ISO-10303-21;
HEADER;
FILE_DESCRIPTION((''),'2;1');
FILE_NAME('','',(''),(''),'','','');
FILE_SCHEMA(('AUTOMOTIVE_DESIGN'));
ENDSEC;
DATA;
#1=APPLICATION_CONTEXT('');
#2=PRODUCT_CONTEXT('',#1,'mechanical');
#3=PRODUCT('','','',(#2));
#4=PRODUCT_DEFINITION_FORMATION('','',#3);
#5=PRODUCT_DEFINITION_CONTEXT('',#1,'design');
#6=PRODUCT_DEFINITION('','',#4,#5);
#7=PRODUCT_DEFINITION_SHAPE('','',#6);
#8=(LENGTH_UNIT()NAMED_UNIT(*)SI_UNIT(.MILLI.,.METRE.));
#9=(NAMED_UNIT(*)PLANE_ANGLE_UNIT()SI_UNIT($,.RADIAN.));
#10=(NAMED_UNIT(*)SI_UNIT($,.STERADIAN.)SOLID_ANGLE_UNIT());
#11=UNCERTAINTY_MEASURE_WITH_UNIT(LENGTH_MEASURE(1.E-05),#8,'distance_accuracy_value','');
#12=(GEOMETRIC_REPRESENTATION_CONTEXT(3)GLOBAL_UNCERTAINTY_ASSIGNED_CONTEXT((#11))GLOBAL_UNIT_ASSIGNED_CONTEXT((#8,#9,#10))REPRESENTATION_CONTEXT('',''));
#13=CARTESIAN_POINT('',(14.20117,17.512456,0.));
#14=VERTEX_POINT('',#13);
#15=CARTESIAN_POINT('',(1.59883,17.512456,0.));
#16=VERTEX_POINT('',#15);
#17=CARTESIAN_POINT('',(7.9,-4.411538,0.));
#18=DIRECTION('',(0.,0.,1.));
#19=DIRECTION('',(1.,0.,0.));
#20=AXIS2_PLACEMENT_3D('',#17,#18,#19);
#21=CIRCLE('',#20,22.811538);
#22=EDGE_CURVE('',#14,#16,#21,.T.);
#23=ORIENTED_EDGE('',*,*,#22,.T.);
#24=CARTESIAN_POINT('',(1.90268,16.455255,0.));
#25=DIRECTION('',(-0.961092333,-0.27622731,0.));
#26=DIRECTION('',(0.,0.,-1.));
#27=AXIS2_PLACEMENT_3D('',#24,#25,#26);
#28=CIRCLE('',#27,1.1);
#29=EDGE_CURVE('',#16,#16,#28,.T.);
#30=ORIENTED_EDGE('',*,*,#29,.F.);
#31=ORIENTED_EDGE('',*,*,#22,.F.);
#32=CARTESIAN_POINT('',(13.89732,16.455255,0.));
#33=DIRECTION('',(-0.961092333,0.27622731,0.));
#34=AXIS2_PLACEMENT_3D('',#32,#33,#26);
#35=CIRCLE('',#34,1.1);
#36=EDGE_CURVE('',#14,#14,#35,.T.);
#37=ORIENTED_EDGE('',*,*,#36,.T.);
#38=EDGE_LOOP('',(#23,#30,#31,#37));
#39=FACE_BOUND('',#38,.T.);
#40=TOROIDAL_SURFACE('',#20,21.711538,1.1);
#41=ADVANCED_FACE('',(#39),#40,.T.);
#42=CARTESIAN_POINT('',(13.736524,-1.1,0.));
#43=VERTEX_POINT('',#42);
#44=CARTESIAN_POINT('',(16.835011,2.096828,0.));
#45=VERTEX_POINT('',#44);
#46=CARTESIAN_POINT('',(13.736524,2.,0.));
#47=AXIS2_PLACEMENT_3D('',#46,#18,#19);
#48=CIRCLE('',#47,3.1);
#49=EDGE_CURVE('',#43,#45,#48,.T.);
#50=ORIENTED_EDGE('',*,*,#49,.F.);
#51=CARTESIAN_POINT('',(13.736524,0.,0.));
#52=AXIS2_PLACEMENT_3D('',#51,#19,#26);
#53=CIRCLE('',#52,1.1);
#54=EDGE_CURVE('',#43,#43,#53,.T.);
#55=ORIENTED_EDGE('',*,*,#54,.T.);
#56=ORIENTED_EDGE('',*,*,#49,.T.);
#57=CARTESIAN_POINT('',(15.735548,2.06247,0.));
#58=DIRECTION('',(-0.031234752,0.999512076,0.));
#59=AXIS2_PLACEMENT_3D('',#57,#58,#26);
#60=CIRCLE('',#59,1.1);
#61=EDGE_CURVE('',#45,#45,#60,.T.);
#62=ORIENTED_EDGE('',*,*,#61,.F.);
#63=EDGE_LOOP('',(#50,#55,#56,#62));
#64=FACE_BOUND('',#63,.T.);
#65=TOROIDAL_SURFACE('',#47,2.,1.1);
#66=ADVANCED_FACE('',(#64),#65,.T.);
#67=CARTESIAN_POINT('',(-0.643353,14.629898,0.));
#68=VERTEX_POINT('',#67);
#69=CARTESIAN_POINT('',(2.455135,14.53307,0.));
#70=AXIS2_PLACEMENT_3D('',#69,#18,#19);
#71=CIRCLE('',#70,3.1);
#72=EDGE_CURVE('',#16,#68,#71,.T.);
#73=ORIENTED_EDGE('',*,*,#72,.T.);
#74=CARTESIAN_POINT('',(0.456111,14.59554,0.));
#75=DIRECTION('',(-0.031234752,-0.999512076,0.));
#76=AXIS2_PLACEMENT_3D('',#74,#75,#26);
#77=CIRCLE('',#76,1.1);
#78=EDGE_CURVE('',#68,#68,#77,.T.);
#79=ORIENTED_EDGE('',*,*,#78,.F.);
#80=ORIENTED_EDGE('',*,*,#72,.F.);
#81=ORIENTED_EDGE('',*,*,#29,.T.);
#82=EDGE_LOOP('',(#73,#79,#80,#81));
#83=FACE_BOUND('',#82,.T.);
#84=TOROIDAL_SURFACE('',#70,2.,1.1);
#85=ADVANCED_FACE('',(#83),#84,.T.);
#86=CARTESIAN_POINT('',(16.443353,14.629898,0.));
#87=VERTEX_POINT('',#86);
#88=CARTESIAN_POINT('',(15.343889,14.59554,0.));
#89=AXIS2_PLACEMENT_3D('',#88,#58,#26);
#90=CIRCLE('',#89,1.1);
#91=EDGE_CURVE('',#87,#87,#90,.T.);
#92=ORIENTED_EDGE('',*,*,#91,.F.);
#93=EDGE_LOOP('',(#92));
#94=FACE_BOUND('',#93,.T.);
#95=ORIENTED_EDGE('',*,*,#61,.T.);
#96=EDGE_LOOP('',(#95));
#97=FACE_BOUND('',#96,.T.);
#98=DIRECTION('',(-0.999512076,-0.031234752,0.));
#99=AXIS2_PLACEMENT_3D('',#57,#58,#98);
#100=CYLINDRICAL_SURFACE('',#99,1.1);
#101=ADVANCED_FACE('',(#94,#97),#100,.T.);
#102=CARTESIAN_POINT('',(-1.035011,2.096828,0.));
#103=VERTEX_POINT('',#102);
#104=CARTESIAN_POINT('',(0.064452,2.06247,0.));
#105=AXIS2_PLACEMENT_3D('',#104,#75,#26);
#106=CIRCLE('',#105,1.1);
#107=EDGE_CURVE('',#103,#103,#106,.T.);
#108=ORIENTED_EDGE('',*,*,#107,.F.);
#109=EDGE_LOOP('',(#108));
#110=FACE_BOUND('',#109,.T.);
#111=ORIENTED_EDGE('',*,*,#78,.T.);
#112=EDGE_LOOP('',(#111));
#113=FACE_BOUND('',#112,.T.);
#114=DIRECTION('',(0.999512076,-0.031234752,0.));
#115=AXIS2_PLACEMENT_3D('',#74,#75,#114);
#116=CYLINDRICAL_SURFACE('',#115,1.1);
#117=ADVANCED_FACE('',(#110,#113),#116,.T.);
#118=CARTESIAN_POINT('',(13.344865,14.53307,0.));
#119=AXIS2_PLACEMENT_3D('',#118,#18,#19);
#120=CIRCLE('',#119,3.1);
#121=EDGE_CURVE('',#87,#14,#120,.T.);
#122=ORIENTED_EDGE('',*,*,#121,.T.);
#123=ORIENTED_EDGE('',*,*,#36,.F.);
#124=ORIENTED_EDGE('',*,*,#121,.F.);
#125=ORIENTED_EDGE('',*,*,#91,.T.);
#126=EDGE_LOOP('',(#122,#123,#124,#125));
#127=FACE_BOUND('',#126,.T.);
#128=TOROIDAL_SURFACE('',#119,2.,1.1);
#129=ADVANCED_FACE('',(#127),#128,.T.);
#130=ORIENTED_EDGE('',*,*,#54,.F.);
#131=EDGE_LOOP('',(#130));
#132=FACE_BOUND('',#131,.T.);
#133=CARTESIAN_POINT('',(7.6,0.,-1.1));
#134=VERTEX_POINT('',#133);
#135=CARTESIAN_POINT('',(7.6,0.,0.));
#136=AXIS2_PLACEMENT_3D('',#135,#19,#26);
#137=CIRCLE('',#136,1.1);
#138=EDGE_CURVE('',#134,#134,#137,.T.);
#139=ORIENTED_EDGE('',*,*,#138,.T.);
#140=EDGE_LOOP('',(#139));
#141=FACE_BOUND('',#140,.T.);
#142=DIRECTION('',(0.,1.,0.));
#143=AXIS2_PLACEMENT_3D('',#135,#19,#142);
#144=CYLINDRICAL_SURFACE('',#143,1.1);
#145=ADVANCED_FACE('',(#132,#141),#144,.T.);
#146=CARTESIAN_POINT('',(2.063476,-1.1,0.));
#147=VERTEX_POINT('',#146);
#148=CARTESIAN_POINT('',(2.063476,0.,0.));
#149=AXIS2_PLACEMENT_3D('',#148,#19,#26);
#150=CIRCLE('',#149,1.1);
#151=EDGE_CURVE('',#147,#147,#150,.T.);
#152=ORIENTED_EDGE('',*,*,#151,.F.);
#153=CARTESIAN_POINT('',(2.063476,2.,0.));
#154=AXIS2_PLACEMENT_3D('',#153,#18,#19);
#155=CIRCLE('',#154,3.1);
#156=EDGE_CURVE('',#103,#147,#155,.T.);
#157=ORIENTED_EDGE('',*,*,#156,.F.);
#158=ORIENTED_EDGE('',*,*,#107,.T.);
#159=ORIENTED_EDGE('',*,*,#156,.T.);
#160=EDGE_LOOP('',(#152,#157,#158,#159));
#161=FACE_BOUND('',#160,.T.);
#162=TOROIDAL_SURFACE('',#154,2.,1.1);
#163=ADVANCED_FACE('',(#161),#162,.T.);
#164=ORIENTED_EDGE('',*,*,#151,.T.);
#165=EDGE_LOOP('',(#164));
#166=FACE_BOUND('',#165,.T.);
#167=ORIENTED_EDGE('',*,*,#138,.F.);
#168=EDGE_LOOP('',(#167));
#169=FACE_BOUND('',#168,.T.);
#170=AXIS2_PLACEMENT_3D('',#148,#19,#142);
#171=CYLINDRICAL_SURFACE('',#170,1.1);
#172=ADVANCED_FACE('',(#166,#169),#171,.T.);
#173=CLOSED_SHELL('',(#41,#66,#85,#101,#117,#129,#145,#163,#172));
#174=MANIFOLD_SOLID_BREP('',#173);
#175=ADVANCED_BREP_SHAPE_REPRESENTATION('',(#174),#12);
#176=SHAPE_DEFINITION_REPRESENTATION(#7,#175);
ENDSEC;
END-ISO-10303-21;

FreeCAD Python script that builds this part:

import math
import FreeCAD as App
import Part
import Sketcher
Q = App.Units.Quantity

doc = App.newDocument("Part")
body = doc.addObject("PartDesign::Body", "Body")

sketch1 = doc.addObject("Sketcher::SketchObject", "Sketch")
body.addObject(sketch1)
sketch1.AttachmentSupport = (doc.YZ_Plane, [""])
sketch1.MapMode = "FlatFace"
sketch1.AttachmentOffset = App.Placement(App.Vector(0, 0, 7.6), App.Rotation())
sketch1.addGeometry(Part.Circle(App.Vector(0, 0, 0), App.Vector(0, 0, 1), 1.1), False)
sketch1.addConstraint([
    Sketcher.Constraint("Coincident", 0, 3, -1, 1),
    Sketcher.Constraint("Diameter", 0, Q("2.2 mm")),
])

sketch2 = doc.addObject("Sketcher::SketchObject", "Sketch001")
body.addObject(sketch2)
sketch2.AttachmentSupport = (doc.XY_Plane, [""])
sketch2.MapMode = "FlatFace"
sketch2.addGeometry([
    Part.LineSegment(App.Vector(2.063476, 0, 0), App.Vector(13.736524, 0, 0)),
    Part.ArcOfCircle(Part.Circle(App.Vector(13.736524, 2, 0), App.Vector(0, 0, 1), 2), math.radians(-90), math.radians(1.789911)),
    Part.LineSegment(App.Vector(15.735548, 2.06247, 0), App.Vector(15.343889, 14.59554, 0)),
    Part.ArcOfCircle(Part.Circle(App.Vector(13.344865, 14.53307, 0), App.Vector(0, 0, 1), 2), math.radians(1.789911), math.radians(73.964833)),
    Part.ArcOfCircle(Part.Circle(App.Vector(7.9, -4.411538, 0), App.Vector(0, 0, 1), 21.711538), math.radians(73.964833), math.radians(106.035167)),
    Part.ArcOfCircle(Part.Circle(App.Vector(2.455135, 14.53307, 0), App.Vector(0, 0, 1), 2), math.radians(106.035167), math.radians(178.210089)),
    Part.LineSegment(App.Vector(0.456111, 14.59554, 0), App.Vector(0.064452, 2.06247, 0)),
    Part.ArcOfCircle(Part.Circle(App.Vector(2.063476, 2, 0), App.Vector(0, 0, 1), 2), math.radians(178.210089), math.radians(270)),
], False)
sketch2.addConstraint([
    Sketcher.Constraint("Tangent", 0, 2, 1, 1),
    Sketcher.Constraint("Tangent", 1, 2, 2, 1),
    Sketcher.Constraint("Tangent", 2, 2, 3, 1),
    Sketcher.Constraint("Tangent", 3, 2, 4, 1),
    Sketcher.Constraint("Tangent", 4, 2, 5, 1),
    Sketcher.Constraint("Tangent", 5, 2, 6, 1),
    Sketcher.Constraint("Tangent", 6, 2, 7, 1),
    Sketcher.Constraint("Tangent", 7, 2, 0, 1),
    Sketcher.Constraint("Horizontal", 0),
    Sketcher.Constraint("Equal", 1, 3),
    Sketcher.Constraint("Equal", 3, 5),
    Sketcher.Constraint("Equal", 5, 7),
    Sketcher.Constraint("PointOnObject", 0, 2, -1),
    Sketcher.Constraint("Horizontal", 3, 3, 5, 3),
    Sketcher.Constraint("Horizontal", 2, 2, 5, 2),
    Sketcher.Constraint("Radius", 1, Q("2 mm")),
    Sketcher.Constraint("DistanceX", -1, 1, 4, 3, Q("7.9 mm")),
    Sketcher.Constraint("Radius", 4, Q("21.711538 mm")),
    Sketcher.Constraint("DistanceY", 1, 2, 3, 3, Q("12.470601 mm")),
    Sketcher.Constraint("Distance", 2, Q("12.539188 mm")),
    Sketcher.Constraint("DistanceX", 0, 1, 0, 2, Q("11.673047 mm")),
])
doc.recompute()

additivepipe = doc.addObject("PartDesign::AdditivePipe", "AdditivePipe")
body.addObject(additivepipe)
additivepipe.Profile = sketch1
additivepipe.Spine = (sketch2, ["Edge1", "Edge2", "Edge3", "Edge4", "Edge5", "Edge6", "Edge7", "Edge8"])

doc.recompute()
